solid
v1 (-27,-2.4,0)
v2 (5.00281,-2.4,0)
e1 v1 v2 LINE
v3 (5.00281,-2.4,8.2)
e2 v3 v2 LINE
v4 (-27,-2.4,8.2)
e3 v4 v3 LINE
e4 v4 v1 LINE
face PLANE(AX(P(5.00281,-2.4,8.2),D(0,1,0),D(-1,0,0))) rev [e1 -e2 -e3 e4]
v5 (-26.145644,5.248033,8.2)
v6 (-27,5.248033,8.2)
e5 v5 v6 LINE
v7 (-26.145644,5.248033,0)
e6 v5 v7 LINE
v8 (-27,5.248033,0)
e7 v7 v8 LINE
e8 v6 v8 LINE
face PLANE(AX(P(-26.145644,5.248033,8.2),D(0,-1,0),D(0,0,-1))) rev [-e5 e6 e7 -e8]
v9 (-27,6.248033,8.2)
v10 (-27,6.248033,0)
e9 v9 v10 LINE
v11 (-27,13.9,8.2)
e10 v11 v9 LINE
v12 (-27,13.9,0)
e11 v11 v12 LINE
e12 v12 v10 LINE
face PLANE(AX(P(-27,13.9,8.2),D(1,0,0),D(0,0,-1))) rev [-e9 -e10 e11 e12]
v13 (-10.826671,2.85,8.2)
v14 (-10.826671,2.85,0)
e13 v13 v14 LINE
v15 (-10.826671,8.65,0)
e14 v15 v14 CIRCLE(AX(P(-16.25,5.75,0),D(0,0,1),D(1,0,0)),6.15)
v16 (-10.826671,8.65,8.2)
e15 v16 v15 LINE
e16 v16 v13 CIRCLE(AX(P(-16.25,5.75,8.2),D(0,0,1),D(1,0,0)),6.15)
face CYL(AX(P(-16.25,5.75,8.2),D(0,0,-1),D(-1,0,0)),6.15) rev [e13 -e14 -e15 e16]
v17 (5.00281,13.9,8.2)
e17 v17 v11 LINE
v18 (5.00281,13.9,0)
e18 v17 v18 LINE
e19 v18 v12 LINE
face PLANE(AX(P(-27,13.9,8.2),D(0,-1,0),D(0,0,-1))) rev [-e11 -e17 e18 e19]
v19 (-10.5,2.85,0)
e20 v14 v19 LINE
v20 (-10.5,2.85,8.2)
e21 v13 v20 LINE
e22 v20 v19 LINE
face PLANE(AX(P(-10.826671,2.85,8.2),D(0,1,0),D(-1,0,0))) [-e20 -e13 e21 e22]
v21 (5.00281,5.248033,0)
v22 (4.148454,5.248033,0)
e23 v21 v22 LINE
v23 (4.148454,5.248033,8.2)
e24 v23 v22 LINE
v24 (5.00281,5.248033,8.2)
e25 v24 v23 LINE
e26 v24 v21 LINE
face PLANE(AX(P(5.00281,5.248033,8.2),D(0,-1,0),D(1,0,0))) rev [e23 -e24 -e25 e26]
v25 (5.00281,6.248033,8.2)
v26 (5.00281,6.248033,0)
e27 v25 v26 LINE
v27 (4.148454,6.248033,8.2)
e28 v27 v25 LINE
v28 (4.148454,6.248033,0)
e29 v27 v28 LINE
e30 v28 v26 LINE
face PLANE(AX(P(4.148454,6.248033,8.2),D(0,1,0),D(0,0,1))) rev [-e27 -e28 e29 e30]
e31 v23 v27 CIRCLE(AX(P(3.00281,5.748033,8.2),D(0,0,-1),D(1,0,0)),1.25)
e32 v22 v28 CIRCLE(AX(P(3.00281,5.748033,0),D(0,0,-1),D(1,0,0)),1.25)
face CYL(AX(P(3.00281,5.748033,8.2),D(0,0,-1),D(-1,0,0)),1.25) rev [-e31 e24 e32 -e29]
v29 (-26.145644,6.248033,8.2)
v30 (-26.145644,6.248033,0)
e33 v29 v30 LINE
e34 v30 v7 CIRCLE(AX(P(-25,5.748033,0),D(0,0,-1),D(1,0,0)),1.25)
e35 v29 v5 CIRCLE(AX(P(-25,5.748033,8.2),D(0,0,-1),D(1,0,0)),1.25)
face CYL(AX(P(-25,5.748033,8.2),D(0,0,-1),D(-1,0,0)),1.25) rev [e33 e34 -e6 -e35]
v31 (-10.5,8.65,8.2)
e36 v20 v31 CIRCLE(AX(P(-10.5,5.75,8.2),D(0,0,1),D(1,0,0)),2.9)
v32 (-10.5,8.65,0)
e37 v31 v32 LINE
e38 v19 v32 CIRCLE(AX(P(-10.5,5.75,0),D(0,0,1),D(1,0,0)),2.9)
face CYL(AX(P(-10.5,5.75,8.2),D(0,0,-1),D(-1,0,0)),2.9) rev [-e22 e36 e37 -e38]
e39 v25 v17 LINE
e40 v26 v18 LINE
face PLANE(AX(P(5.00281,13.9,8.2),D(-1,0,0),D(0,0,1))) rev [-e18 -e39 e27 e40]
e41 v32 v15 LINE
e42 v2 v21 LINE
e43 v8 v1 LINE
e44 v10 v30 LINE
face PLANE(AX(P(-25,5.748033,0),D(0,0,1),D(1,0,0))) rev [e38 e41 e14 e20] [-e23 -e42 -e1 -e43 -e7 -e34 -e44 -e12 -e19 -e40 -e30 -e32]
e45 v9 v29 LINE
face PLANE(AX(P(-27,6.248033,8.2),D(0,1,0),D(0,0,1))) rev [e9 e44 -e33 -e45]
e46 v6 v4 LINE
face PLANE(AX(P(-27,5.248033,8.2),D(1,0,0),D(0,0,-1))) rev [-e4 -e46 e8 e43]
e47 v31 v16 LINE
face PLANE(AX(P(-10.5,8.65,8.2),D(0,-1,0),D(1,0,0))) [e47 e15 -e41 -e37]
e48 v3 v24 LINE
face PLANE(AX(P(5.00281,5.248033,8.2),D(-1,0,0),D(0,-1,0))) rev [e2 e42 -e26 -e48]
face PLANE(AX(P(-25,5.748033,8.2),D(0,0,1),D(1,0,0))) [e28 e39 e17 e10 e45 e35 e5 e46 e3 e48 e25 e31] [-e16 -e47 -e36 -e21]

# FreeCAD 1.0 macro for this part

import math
import FreeCAD as App
import Part
import Sketcher
from FreeCAD import Vector
Q = App.Units.Quantity

doc = App.newDocument("Part")
params = doc.addObject("Spreadsheet::Sheet", "Params")
for row, (alias, value) in enumerate([
    ("sketch1_radius", "2.9 mm"),
    ("sketch1_radius2", "1.25 mm"),
    ("sketch1_radius3", "6.15 mm"),
    ("pad1_length", "8.2 mm"),
], start=1):
    params.set(f"A{row}", alias)
    params.set(f"B{row}", "=" + value)
    params.setAlias(f"B{row}", alias)

body = doc.addObject("PartDesign::Body", "Body")

# Sketch on XY plane
sketch1 = body.newObject("Sketcher::SketchObject", "Sketch")
sketch1.AttachmentSupport = (doc.getObject("XY_Plane"), [""])
sketch1.MapMode = "FlatFace"
sketch1.addGeometry([
    Part.LineSegment(Vector(-27, -2.4, 0), Vector(5, -2.4, 0)),  # 0
    Part.LineSegment(Vector(5, -2.4, 0), Vector(5, 5.25, 0)),  # 1
    Part.LineSegment(Vector(5, 5.25, 0), Vector(4.15, 5.25, 0)),  # 2
    Part.ArcOfCircle(Part.Circle(Vector(3, 5.75, 0), Vector(0, 0, 1), 1.25), math.radians(24), math.radians(336)),  # 3
    Part.LineSegment(Vector(4.15, 6.25, 0), Vector(5, 6.25, 0)),  # 4
    Part.LineSegment(Vector(5, 6.25, 0), Vector(5, 13.9, 0)),  # 5
    Part.LineSegment(Vector(5, 13.9, 0), Vector(-27, 13.9, 0)),  # 6
    Part.LineSegment(Vector(-27, 13.9, 0), Vector(-27, 6.25, 0)),  # 7
    Part.LineSegment(Vector(-27, 6.25, 0), Vector(-26.15, 6.25, 0)),  # 8
    Part.ArcOfCircle(Part.Circle(Vector(-25, 5.75, 0), Vector(0, 0, 1), 1.25), math.radians(-156), math.radians(156)),  # 9
    Part.LineSegment(Vector(-26.15, 5.25, 0), Vector(-27, 5.25, 0)),  # 10
    Part.LineSegment(Vector(-27, 5.25, 0), Vector(-27, -2.4, 0)),  # 11
    Part.ArcOfCircle(Part.Circle(Vector(-10.5, 5.75, 0), Vector(0, 0, 1), 2.9), math.radians(-90), math.radians(90)),  # 12
    Part.LineSegment(Vector(-10.5, 2.85, 0), Vector(-10.83, 2.85, 0)),  # 13
    Part.ArcOfCircle(Part.Circle(Vector(-16.25, 5.75, 0), Vector(0, 0, 1), 6.15), math.radians(28), math.radians(332)),  # 14
    Part.LineSegment(Vector(-10.83, 8.65, 0), Vector(-10.5, 8.65, 0)),  # 15
], False)
sketch1.addConstraint([
    Sketcher.Constraint("Coincident", 0, 2, 1, 1),
    Sketcher.Constraint("Coincident", 1, 2, 2, 1),
    Sketcher.Constraint("Coincident", 2, 2, 3, 2),
    Sketcher.Constraint("Coincident", 3, 1, 4, 1),
    Sketcher.Constraint("Coincident", 4, 2, 5, 1),
    Sketcher.Constraint("Coincident", 5, 2, 6, 1),
    Sketcher.Constraint("Coincident", 6, 2, 7, 1),
    Sketcher.Constraint("Coincident", 7, 2, 8, 1),
    Sketcher.Constraint("Coincident", 8, 2, 9, 2),
    Sketcher.Constraint("Coincident", 9, 1, 10, 1),
    Sketcher.Constraint("Coincident", 10, 2, 11, 1),
    Sketcher.Constraint("Coincident", 11, 2, 0, 1),
    Sketcher.Constraint("Tangent", 12, 1, 13, 1),
    Sketcher.Constraint("Coincident", 13, 2, 14, 2),
    Sketcher.Constraint("Coincident", 14, 1, 15, 1),
    Sketcher.Constraint("Tangent", 15, 2, 12, 2),
    Sketcher.Constraint("Horizontal", 0),
    Sketcher.Constraint("Vertical", 1),
    Sketcher.Constraint("Horizontal", 2),
    Sketcher.Constraint("Horizontal", 4),
    Sketcher.Constraint("Vertical", 5),
    Sketcher.Constraint("Horizontal", 6),
    Sketcher.Constraint("Vertical", 7),
    Sketcher.Constraint("Horizontal", 8),
    Sketcher.Constraint("Horizontal", 10),
    Sketcher.Constraint("Vertical", 11),
    Sketcher.Constraint("Horizontal", 13),
    Sketcher.Constraint("Horizontal", 15),
    Sketcher.Constraint("Equal", 3, 9),
    Sketcher.Constraint("Horizontal", 3, 3, 9, 3),
    Sketcher.Constraint("Horizontal", 12, 3, 14, 3),
    Sketcher.Constraint("Horizontal", 4, 2, 7, 2),
    Sketcher.Constraint("Horizontal", 2, 2, 9, 1),
    Sketcher.Constraint("Vertical", 2, 2, 3, 1),
    Sketcher.Constraint("Vertical", 1, 2, 4, 2),
    Sketcher.Constraint("Vertical", 7, 2, 10, 2),
    Sketcher.Constraint("Equal", 4, 8),
    Sketcher.Constraint("Radius", 12, Q("2.9 mm")),
    Sketcher.Constraint("Radius", 3, Q("1.25 mm")),
    Sketcher.Constraint("Radius", 14, Q("6.15 mm")),
    Sketcher.Constraint("DistanceX", 9, 3, -1, 1, Q("25 mm")),
    Sketcher.Constraint("DistanceX", 6, 2, -1, 1, Q("27 mm")),
    Sketcher.Constraint("DistanceY", 2, 2, 3, 1, Q("1 mm")),
    Sketcher.Constraint("DistanceX", 12, 3, -1, 1, Q("10.5 mm")),
    Sketcher.Constraint("DistanceY", 0, 2, -1, 1, Q("2.4 mm")),
    Sketcher.Constraint("DistanceY", -1, 1, 5, 2, Q("13.9 mm")),
    Sketcher.Constraint("DistanceY", -1, 1, 12, 3, Q("5.75 mm")),
    Sketcher.Constraint("DistanceX", 14, 3, -1, 1, Q("16.25 mm")),
    Sketcher.Constraint("DistanceX", 0, 1, 0, 2, Q("32.00281 mm")),
    Sketcher.Constraint("DistanceY", 1, 1, 1, 2, Q("7.648033 mm")),
])
sketch1.setExpression("Constraints[37]", "Params.sketch1_radius")
sketch1.setExpression("Constraints[38]", "Params.sketch1_radius2")
sketch1.setExpression("Constraints[39]", "Params.sketch1_radius3")
pad1 = body.newObject("PartDesign::Pad", "Pad")
pad1.Profile = sketch1
pad1.setExpression("Length", "Params.pad1_length")

doc.recompute()
